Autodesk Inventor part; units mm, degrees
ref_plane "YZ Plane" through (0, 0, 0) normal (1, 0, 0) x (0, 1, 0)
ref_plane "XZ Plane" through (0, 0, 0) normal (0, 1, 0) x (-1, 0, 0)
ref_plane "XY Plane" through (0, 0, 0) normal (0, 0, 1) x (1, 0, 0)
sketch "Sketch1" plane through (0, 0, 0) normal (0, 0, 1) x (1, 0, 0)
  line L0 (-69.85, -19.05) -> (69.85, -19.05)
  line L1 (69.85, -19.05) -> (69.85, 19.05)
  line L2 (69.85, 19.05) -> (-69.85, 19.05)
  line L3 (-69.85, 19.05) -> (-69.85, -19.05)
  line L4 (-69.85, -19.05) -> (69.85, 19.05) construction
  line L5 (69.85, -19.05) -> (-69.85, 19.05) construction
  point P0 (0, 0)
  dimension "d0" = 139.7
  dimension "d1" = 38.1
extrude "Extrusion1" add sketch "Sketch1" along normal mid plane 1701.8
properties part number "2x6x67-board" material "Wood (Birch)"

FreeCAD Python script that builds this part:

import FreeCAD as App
import Part
import Sketcher
Q = App.Units.Quantity


def add_polygon(sketch, points):
    """Adds a closed chain of lines whose ends are joined by coincident constraints."""
    first, n = sketch.GeometryCount, len(points)
    for a, b in zip(points, points[1:] + points[:1]):
        sketch.addGeometry(Part.LineSegment(App.Vector(*a, 0), App.Vector(*b, 0)), False)
    for i in range(n):
        sketch.addConstraint(Sketcher.Constraint("Coincident", first + i, 2, first + (i + 1) % n, 1))

doc = App.newDocument("Part")
params = doc.addObject("Spreadsheet::Sheet", "Params")
for row, (alias, value) in enumerate([
    ("sketch1_width", "5.5 in"),
    ("sketch1_height", "1.5 in"),
    ("pad1_length", "67 in"),
], start=1):
    params.set(f"A{row}", alias)
    params.set(f"B{row}", "=" + value)
    params.setAlias(f"B{row}", alias)

body = doc.addObject("PartDesign::Body", "Body")

# Sketch on XY plane
sketch1 = doc.addObject("Sketcher::SketchObject", "Sketch")
body.addObject(sketch1)
sketch1.AttachmentSupport = (doc.XY_Plane, [""])
sketch1.MapMode = "FlatFace"
add_polygon(sketch1, [(-70, 19), (-70, -19), (70, -19), (70, 19)])  # lines 0-3
sketch1.addConstraint(Sketcher.Constraint("Vertical", 0))
sketch1.addConstraint(Sketcher.Constraint("Horizontal", 1))
sketch1.addConstraint(Sketcher.Constraint("Vertical", 2))
sketch1.addConstraint(Sketcher.Constraint("Horizontal", 3))
sketch1.addConstraint(Sketcher.Constraint("Symmetric", 0, 2, 2, 2, -1, 1))
sketch1.addConstraint(Sketcher.Constraint("DistanceX", 1, 1, 1, 2, Q("5.5 in")))
sketch1.addConstraint(Sketcher.Constraint("DistanceY", 0, 2, 0, 1, Q("1.5 in")))
sketch1.setExpression("Constraints[9]", "Params.sketch1_width")
sketch1.setExpression("Constraints[10]", "Params.sketch1_height")
pad1 = doc.addObject("PartDesign::Pad", "Pad")
body.addObject(pad1)
pad1.Profile = sketch1
pad1.setExpression("Length", "Params.pad1_length")
pad1.Midplane = True

doc.recompute()
